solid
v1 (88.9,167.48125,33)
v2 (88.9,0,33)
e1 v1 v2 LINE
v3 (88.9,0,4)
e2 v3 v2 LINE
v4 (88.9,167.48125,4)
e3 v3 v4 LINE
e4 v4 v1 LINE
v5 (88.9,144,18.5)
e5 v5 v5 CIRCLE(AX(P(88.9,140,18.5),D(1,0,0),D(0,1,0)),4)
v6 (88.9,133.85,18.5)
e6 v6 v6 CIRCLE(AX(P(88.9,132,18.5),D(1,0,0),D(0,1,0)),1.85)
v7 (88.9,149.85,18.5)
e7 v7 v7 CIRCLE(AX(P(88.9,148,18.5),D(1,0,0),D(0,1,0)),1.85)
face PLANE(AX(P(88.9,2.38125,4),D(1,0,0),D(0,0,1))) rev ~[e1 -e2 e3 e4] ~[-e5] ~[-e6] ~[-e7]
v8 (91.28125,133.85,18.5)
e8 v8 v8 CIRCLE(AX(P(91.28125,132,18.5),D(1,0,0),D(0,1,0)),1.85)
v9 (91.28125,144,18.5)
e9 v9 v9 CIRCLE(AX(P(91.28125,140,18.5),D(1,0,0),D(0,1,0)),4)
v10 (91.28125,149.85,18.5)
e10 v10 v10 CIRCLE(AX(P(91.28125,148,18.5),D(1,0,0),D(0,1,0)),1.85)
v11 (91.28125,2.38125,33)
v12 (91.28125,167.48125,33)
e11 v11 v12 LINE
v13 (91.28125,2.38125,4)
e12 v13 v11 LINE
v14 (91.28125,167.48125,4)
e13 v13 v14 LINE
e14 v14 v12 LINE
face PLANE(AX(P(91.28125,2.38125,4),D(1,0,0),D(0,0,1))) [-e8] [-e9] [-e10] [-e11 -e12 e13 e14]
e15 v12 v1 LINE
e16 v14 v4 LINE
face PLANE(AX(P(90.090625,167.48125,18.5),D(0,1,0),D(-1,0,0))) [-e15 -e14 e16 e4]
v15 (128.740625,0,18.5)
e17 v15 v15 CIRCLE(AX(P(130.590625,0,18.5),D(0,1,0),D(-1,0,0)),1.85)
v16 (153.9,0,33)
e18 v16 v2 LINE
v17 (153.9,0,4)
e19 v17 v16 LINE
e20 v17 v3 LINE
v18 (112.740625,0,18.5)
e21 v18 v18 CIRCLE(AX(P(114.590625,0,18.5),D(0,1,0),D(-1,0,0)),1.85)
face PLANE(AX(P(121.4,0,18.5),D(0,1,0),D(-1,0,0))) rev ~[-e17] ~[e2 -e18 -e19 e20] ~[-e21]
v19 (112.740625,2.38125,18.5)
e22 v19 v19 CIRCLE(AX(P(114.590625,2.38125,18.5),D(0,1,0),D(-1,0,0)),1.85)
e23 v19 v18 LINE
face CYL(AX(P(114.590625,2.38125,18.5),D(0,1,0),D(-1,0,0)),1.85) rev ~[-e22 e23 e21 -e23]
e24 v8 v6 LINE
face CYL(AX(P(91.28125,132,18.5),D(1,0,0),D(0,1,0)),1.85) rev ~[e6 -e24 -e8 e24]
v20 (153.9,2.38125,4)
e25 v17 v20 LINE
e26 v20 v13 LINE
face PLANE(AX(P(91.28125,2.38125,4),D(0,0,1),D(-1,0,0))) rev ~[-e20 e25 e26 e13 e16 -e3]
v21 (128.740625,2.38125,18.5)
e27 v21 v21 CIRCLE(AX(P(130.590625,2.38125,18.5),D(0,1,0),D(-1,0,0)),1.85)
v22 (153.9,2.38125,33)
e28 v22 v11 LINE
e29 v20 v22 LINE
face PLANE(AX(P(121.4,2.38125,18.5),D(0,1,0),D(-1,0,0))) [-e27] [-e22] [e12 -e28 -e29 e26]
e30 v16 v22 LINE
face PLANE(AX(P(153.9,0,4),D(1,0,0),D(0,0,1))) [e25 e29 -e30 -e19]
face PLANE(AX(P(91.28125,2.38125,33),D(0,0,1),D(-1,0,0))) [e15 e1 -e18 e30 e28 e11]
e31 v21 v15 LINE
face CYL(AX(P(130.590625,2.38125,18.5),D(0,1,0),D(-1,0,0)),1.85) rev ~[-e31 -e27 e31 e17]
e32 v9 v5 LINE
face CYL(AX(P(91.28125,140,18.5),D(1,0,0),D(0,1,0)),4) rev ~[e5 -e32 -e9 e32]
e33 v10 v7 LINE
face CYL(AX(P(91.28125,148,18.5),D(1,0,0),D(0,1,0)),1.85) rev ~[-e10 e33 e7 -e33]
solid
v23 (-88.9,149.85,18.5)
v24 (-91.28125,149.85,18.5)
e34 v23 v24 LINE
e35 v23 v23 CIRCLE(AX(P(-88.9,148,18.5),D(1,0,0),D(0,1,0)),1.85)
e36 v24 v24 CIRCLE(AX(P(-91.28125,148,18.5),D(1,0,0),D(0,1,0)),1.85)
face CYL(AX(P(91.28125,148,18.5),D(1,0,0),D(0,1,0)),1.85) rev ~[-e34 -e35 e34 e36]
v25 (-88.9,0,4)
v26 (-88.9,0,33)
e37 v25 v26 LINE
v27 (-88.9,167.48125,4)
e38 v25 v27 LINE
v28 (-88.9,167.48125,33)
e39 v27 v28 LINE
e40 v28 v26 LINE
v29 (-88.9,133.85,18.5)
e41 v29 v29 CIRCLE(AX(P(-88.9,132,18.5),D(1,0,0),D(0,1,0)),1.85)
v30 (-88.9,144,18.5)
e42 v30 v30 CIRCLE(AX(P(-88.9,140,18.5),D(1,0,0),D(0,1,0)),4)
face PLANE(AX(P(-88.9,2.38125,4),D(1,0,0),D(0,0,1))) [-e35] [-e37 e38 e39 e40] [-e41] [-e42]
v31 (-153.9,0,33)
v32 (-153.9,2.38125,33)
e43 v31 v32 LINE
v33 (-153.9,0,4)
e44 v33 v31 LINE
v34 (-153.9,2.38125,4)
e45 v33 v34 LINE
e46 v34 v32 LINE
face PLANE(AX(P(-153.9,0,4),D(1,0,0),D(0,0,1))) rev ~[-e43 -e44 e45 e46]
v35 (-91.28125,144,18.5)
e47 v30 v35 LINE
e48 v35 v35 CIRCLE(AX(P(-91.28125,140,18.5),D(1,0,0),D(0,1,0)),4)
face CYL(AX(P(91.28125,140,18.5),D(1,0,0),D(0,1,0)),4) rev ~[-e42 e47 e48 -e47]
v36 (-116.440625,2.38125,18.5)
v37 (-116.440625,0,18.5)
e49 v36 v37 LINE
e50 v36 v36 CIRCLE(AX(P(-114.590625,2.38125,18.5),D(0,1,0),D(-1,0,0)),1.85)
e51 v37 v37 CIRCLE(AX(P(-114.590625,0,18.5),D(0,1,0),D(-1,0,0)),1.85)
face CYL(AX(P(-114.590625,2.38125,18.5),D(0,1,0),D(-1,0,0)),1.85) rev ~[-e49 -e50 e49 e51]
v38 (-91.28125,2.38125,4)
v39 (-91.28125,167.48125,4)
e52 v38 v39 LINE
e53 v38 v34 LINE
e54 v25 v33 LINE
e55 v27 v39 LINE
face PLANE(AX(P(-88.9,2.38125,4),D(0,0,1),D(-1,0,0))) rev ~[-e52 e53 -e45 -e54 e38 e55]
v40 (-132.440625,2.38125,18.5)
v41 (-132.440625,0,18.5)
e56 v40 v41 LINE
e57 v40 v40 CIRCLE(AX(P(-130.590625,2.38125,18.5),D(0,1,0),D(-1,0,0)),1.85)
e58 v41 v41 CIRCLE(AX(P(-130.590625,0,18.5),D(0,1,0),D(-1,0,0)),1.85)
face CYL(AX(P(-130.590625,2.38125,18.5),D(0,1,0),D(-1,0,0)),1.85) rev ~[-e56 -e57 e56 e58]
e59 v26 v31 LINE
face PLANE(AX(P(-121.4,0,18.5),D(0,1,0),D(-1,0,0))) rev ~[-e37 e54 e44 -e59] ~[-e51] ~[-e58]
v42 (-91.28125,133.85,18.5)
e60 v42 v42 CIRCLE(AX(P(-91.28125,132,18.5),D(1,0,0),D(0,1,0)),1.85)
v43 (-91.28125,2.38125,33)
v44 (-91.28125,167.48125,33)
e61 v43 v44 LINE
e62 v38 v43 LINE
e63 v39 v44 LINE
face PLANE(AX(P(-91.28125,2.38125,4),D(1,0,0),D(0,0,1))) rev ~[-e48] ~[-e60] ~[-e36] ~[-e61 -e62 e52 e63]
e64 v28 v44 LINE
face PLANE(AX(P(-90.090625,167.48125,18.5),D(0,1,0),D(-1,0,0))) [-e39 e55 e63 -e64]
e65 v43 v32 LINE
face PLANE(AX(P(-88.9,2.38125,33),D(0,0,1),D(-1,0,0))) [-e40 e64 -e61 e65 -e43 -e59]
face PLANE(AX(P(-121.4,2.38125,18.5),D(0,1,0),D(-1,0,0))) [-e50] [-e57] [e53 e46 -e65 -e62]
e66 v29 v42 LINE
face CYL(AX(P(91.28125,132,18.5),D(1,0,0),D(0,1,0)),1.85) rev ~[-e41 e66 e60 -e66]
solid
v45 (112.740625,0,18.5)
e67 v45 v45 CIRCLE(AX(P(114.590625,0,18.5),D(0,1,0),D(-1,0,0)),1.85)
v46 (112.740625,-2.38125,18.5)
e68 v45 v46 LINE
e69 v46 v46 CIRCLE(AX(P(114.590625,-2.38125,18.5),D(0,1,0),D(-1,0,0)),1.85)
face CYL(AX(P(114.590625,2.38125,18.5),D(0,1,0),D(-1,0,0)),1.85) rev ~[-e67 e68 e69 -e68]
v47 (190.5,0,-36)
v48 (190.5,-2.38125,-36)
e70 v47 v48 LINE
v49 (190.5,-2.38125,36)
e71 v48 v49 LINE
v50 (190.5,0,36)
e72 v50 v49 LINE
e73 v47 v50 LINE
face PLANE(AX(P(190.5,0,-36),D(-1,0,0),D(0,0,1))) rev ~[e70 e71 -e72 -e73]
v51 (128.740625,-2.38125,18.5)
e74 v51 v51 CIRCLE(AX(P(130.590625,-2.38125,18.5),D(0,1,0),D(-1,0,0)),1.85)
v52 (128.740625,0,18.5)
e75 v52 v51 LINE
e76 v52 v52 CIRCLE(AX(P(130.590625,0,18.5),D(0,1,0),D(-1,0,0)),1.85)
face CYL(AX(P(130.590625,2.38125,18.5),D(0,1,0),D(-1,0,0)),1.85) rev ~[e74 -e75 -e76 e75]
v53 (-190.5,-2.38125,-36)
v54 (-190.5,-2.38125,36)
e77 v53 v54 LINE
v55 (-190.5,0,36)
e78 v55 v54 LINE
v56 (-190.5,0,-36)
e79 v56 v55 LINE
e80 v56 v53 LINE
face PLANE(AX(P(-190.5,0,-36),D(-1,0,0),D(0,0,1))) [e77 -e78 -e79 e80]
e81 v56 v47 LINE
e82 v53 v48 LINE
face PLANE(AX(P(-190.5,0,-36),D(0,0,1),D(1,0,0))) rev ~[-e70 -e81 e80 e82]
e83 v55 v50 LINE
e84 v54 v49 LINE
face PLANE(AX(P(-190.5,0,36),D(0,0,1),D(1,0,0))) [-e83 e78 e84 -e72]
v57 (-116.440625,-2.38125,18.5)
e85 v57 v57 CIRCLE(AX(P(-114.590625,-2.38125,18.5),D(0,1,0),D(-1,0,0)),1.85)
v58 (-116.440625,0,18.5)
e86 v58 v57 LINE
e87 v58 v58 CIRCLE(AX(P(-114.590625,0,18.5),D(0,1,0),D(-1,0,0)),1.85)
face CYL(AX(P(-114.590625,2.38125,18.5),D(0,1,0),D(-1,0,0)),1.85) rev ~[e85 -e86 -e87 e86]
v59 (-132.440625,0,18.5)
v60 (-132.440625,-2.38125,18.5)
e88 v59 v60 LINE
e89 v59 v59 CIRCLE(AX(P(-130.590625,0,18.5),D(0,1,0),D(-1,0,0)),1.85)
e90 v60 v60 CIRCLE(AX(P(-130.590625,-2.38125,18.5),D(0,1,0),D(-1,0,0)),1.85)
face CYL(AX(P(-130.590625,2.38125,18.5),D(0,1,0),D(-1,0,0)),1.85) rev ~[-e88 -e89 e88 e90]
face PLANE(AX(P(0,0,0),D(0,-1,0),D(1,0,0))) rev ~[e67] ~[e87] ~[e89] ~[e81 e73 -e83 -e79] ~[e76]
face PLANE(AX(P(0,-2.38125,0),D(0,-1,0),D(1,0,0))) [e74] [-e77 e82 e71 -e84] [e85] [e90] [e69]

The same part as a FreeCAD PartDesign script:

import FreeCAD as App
import Part
import Sketcher
from FreeCAD import Vector

doc = App.newDocument("Part")
params = doc.addObject("Spreadsheet::Sheet", "Params")
for row, (alias, value) in enumerate([
    ("sketch1_width", "381 mm"),
    ("sketch1_height", "72 mm"),
    ("pad1_length", "2.38125 mm"),
    ("sketch2_width", "65 mm"),
    ("sketch2_height", "29 mm"),
    ("pad2_length", "2.38125 mm"),
    ("sketch3_height", "29 mm"),
    ("pad3_length", "165.1 mm"),
    ("sketch4_diameter", "3.7 mm"),
    ("pad4_length", "25 mm"),
    ("sketch5_diameter", "8 mm"),
    ("sketch5_diameter2", "3.7 mm"),
    ("pocket1_length", "293.97204 mm"),
], start=1):
    params.set(f"A{row}", alias)
    params.set(f"B{row}", "=" + value)
    params.setAlias(f"B{row}", alias)

body = doc.addObject("PartDesign::Body", "Body")

# Sketch on XZ plane
sketch1 = body.newObject("Sketcher::SketchObject", "Sketch")
sketch1.AttachmentSupport = (doc.getObject("XZ_Plane"), [""])
sketch1.MapMode = "FlatFace"
sketch1.addGeometry([
    Part.LineSegment(Vector(-190, 36, 0), Vector(-190, -36, 0)),
    Part.LineSegment(Vector(-190, -36, 0), Vector(190, -36, 0)),
    Part.LineSegment(Vector(190, -36, 0), Vector(190, 36, 0)),
    Part.LineSegment(Vector(190, 36, 0), Vector(-190, 36, 0)),
], False)
sketch1.addConstraint([
    Sketcher.Constraint("Coincident", 0, 2, 1, 1),
    Sketcher.Constraint("Coincident", 1, 2, 2, 1),
    Sketcher.Constraint("Coincident", 2, 2, 3, 1),
    Sketcher.Constraint("Coincident", 3, 2, 0, 1),
    Sketcher.Constraint("Vertical", 0),
    Sketcher.Constraint("Horizontal", 1),
    Sketcher.Constraint("Vertical", 2),
    Sketcher.Constraint("Horizontal", 3),
    Sketcher.Constraint("Symmetric", 0, 2, 2, 2, -1, 1),
    Sketcher.Constraint("DistanceX", 1, 1, 1, 2, 381.0),
    Sketcher.Constraint("DistanceY", 0, 2, 0, 1, 72.0),
])
sketch1.setExpression("Constraints[9]", "Params.sketch1_width")
sketch1.setExpression("Constraints[10]", "Params.sketch1_height")
pad1 = body.newObject("PartDesign::Pad", "Pad")
pad1.Profile = sketch1
pad1.setExpression("Length", "Params.pad1_length")
body2 = doc.addObject("PartDesign::Body", "Body001")
body2.AllowCompound = True

# Sketch on XZ plane
sketch2 = body2.newObject("Sketcher::SketchObject", "Sketch001")
sketch2.AttachmentSupport = (doc.getObject("XZ_Plane001"), [""])
sketch2.MapMode = "FlatFace"
sketch2.addGeometry([
    Part.LineSegment(Vector(154, 33, 0), Vector(154, 4, 0)),  # 0
    Part.LineSegment(Vector(154, 4, 0), Vector(89, 4, 0)),  # 1
    Part.LineSegment(Vector(89, 4, 0), Vector(89, 33, 0)),  # 2
    Part.LineSegment(Vector(89, 33, 0), Vector(154, 33, 0)),  # 3
    Part.LineSegment(Vector(-89, 33, 0), Vector(-89, 4, 0)),  # 4
    Part.LineSegment(Vector(-89, 4, 0), Vector(-154, 4, 0)),  # 5
    Part.LineSegment(Vector(-154, 4, 0), Vector(-154, 33, 0)),  # 6
    Part.LineSegment(Vector(-154, 33, 0), Vector(-89, 33, 0)),  # 7
], False)
sketch2.addConstraint([
    Sketcher.Constraint("Coincident", 0, 2, 1, 1),
    Sketcher.Constraint("Coincident", 1, 2, 2, 1),
    Sketcher.Constraint("Coincident", 2, 2, 3, 1),
    Sketcher.Constraint("Coincident", 3, 2, 0, 1),
    Sketcher.Constraint("Coincident", 4, 2, 5, 1),
    Sketcher.Constraint("Coincident", 5, 2, 6, 1),
    Sketcher.Constraint("Coincident", 6, 2, 7, 1),
    Sketcher.Constraint("Coincident", 7, 2, 4, 1),
    Sketcher.Constraint("Vertical", 0),
    Sketcher.Constraint("Horizontal", 1),
    Sketcher.Constraint("Vertical", 2),
    Sketcher.Constraint("Horizontal", 3),
    Sketcher.Constraint("Vertical", 4),
    Sketcher.Constraint("Horizontal", 5),
    Sketcher.Constraint("Vertical", 6),
    Sketcher.Constraint("Horizontal", 7),
    Sketcher.Constraint("Symmetric", 1, 2, 4, 2, -2),
    Sketcher.Constraint("Symmetric", 3, 2, 6, 2, -2),
    Sketcher.Constraint("DistanceX", 1, 2, 1, 1, 65.0),
    Sketcher.Constraint("DistanceY", 0, 2, 0, 1, 29.0),
    Sketcher.Constraint("DistanceY", -1, 1, 0, 2, 4.0),
    Sketcher.Constraint("DistanceX", -1, 1, 0, 2, 153.9),
])
sketch2.setExpression("Constraints[18]", "Params.sketch2_width")
sketch2.setExpression("Constraints[19]", "Params.sketch2_height")
pad2 = body2.newObject("PartDesign::Pad", "Pad001")
pad2.Profile = sketch2
pad2.setExpression("Length", "Params.pad2_length")
pad2.Reversed = True

# Sketch on XZ plane
sketch3 = body2.newObject("Sketcher::SketchObject", "Sketch002")
sketch3.AttachmentSupport = (doc.getObject("XZ_Plane001"), [""])
sketch3.MapMode = "FlatFace"
sketch3.AttachmentOffset = App.Placement(Vector(0, 0, -2.38125), App.Rotation())
sketch3.addGeometry([
    Part.LineSegment(Vector(91.3, 33, 0), Vector(91.3, 4, 0)),  # 0
    Part.LineSegment(Vector(91.3, 4, 0), Vector(88.9, 4, 0)),  # 1
    Part.LineSegment(Vector(88.9, 4, 0), Vector(88.9, 33, 0)),  # 2
    Part.LineSegment(Vector(88.9, 33, 0), Vector(91.3, 33, 0)),  # 3
    Part.LineSegment(Vector(-88.9, 33, 0), Vector(-88.9, 4, 0)),  # 4
    Part.LineSegment(Vector(-88.9, 4, 0), Vector(-91.3, 4, 0)),  # 5
    Part.LineSegment(Vector(-91.3, 4, 0), Vector(-91.3, 33, 0)),  # 6
    Part.LineSegment(Vector(-91.3, 33, 0), Vector(-88.9, 33, 0)),  # 7
], False)
sketch3.addConstraint([
    Sketcher.Constraint("Coincident", 0, 2, 1, 1),
    Sketcher.Constraint("Coincident", 1, 2, 2, 1),
    Sketcher.Constraint("Coincident", 2, 2, 3, 1),
    Sketcher.Constraint("Coincident", 3, 2, 0, 1),
    Sketcher.Constraint("Coincident", 4, 2, 5, 1),
    Sketcher.Constraint("Coincident", 5, 2, 6, 1),
    Sketcher.Constraint("Coincident", 6, 2, 7, 1),
    Sketcher.Constraint("Coincident", 7, 2, 4, 1),
    Sketcher.Constraint("Vertical", 0),
    Sketcher.Constraint("Horizontal", 1),
    Sketcher.Constraint("Vertical", 2),
    Sketcher.Constraint("Horizontal", 3),
    Sketcher.Constraint("Vertical", 4),
    Sketcher.Constraint("Horizontal", 5),
    Sketcher.Constraint("Vertical", 6),
    Sketcher.Constraint("Horizontal", 7),
    Sketcher.Constraint("Symmetric", 1, 2, 4, 2, -2),
    Sketcher.Constraint("Symmetric", 3, 2, 6, 2, -2),
    Sketcher.Constraint("DistanceY", 0, 2, 0, 1, 29.0),
    Sketcher.Constraint("DistanceY", -1, 1, 0, 2, 4.0),
    Sketcher.Constraint("DistanceX", -1, 1, 1, 2, 88.9),
    Sketcher.Constraint("DistanceX", 1, 2, 1, 1, 2.38125),
])
sketch3.setExpression("Constraints[18]", "Params.sketch3_height")
pad3 = body2.newObject("PartDesign::Pad", "Pad002")
pad3.Profile = sketch3
pad3.setExpression("Length", "Params.pad3_length")
pad3.Reversed = True
body3 = doc.addObject("PartDesign::Body", "Body002")
body3.AllowCompound = True

# Sketch on XZ plane
sketch4 = body3.newObject("Sketcher::SketchObject", "Sketch003")
sketch4.AttachmentSupport = (doc.getObject("XZ_Plane002"), [""])
sketch4.MapMode = "FlatFace"
sketch4.AttachmentOffset = App.Placement(Vector(0, 0, -2.38125), App.Rotation())
sketch4.addGeometry([
    Part.Circle(Vector(130.6, 18.5, 0), Vector(0, 0, 1), 1.9),
    Part.Circle(Vector(114.6, 18.5, 0), Vector(0, 0, 1), 1.9),
    Part.Circle(Vector(-130.6, 18.5, 0), Vector(0, 0, 1), 1.9),
    Part.Circle(Vector(-114.6, 18.5, 0), Vector(0, 0, 1), 1.9),
], False)
sketch4.addConstraint([
    Sketcher.Constraint("Equal", 0, 1),
    Sketcher.Constraint("Equal", 1, 2),
    Sketcher.Constraint("Equal", 2, 3),
    Sketcher.Constraint("Symmetric", 0, 3, 2, 3, -2),
    Sketcher.Constraint("Symmetric", 1, 3, 3, 3, -2),
    Sketcher.Constraint("Horizontal", 0, 3, 1, 3),
    Sketcher.Constraint("Diameter", 0, 3.7),
    Sketcher.Constraint("DistanceX", 1, 3, 0, 3, 16.0),
    Sketcher.Constraint("DistanceY", -1, 1, 0, 3, 18.5),
    Sketcher.Constraint("DistanceX", 2, 3, 1, 3, 245.18125),
])
sketch4.setExpression("Constraints[6]", "Params.sketch4_diameter")
pad4 = body3.newObject("PartDesign::Pad", "Pad003")
pad4.Profile = sketch4
pad4.setExpression("Length", "Params.pad4_length")
doc.recompute()

body4 = doc.addObject("PartDesign::Body", "Body003")
body4.BaseFeature = body3
boolean = body.newObject("PartDesign::Boolean", "Boolean")
boolean.Type = "Cut"
boolean.addObjects([body4])
doc.recompute()
body2.AllowCompound = True
doc.recompute()

boolean2 = body2.newObject("PartDesign::Boolean", "Boolean001")
boolean2.Type = "Cut"
boolean2.addObjects([body3])

# Sketch on YZ plane
sketch5 = body2.newObject("Sketcher::SketchObject", "Sketch004")
sketch5.AttachmentSupport = (doc.getObject("YZ_Plane001"), [""])
sketch5.MapMode = "FlatFace"
sketch5.AttachmentOffset = App.Placement(Vector(0, 0, 91.28125), App.Rotation())
sketch5.addGeometry([
    Part.Circle(Vector(148, 18.5, 0), Vector(0, 0, 1), 1.9),
    Part.Circle(Vector(132, 18.5, 0), Vector(0, 0, 1), 1.9),
    Part.Circle(Vector(140, 18.5, 0), Vector(0, 0, 1), 4),
], False)
sketch5.addConstraint([
    Sketcher.Constraint("Equal", 0, 1),
    Sketcher.Constraint("Horizontal", 0, 3, 1, 3),
    Sketcher.Constraint("Horizontal", 1, 3, 2, 3),
    Sketcher.Constraint("Diameter", 2, 8.0),
    Sketcher.Constraint("Diameter", 0, 3.7),
    Sketcher.Constraint("DistanceX", -1, 1, 0, 3, 148.0),
    Sketcher.Constraint("DistanceX", -1, 1, 1, 3, 132.0),
    Sketcher.Constraint("DistanceX", -1, 1, 2, 3, 140.0),
    Sketcher.Constraint("DistanceY", -1, 1, 0, 3, 18.5),
])
sketch5.setExpression("Constraints[3]", "Params.sketch5_diameter")
sketch5.setExpression("Constraints[4]", "Params.sketch5_diameter2")
pocket1 = body2.newObject("PartDesign::Pocket", "Pocket")
pocket1.Profile = sketch5
pocket1.setExpression("Length", "Params.pocket1_length")

doc.recompute()
